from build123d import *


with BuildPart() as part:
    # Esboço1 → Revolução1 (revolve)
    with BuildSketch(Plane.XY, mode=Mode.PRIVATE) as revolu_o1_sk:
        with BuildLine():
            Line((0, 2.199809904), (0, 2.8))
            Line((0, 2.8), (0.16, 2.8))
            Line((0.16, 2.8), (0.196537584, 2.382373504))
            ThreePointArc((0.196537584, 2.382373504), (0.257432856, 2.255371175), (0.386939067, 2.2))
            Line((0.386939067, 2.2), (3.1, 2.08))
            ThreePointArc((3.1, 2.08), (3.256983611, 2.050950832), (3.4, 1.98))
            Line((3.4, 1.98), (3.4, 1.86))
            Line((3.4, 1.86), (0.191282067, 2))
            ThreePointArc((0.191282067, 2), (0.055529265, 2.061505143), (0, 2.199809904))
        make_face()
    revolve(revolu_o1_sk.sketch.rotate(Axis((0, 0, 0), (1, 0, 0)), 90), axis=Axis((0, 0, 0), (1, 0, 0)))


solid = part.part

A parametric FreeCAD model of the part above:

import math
import FreeCAD as App
import Part
import Sketcher
Q = App.Units.Quantity

doc = App.newDocument("Part")
body = doc.addObject("PartDesign::Body", "Body")

sketch1 = body.newObject("Sketcher::SketchObject", "Sketch")
sketch1.AttachmentSupport = (doc.getObject("XY_Plane"), [""])
sketch1.MapMode = "FlatFace"
sketch1.addGeometry([
    Part.LineSegment(App.Vector(0, 2.8, 0), App.Vector(0, 2.19981, 0)),
    Part.ArcOfCircle(Part.Circle(App.Vector(0.2, 2.19981, 0), App.Vector(0, 0, 1), 0.2), math.radians(180), math.radians(267.501705)),
    Part.LineSegment(App.Vector(0.191282, 2, 0), App.Vector(3.4, 1.86, 0)),
    Part.LineSegment(App.Vector(3.4, 1.86, 0), App.Vector(3.4, 1.98, 0)),
    Part.ArcOfCircle(Part.Circle(App.Vector(3.074501, 1.503504, 0), App.Vector(0, 0, 1), 0.57706), math.radians(55.662671), math.radians(87.467431)),
    Part.LineSegment(App.Vector(3.1, 2.08, 0), App.Vector(0.386939, 2.2, 0)),
    Part.ArcOfCircle(Part.Circle(App.Vector(0.395777, 2.399805, 0), App.Vector(0, 0, 1), 0.2), math.radians(-175), math.radians(-92.53257)),
    Part.LineSegment(App.Vector(0.196538, 2.382374, 0), App.Vector(0.16, 2.8, 0)),
    Part.LineSegment(App.Vector(0.16, 2.8, 0), App.Vector(0, 2.8, 0)),
], False)
sketch1.addConstraint([
    Sketcher.Constraint("Tangent", 0, 2, 1, 1),
    Sketcher.Constraint("Tangent", 1, 2, 2, 1),
    Sketcher.Constraint("Coincident", 2, 2, 3, 1),
    Sketcher.Constraint("Coincident", 3, 2, 4, 1),
    Sketcher.Constraint("Tangent", 4, 2, 5, 1),
    Sketcher.Constraint("Tangent", 5, 2, 6, 2),
    Sketcher.Constraint("Tangent", 6, 1, 7, 1),
    Sketcher.Constraint("Coincident", 7, 2, 8, 1),
    Sketcher.Constraint("Coincident", 8, 2, 0, 1),
    Sketcher.Constraint("Vertical", 0),
    Sketcher.Constraint("Vertical", 3),
    Sketcher.Constraint("Horizontal", 8),
    Sketcher.Constraint("Equal", 1, 6),
    Sketcher.Constraint("PointOnObject", 0, 2, -2),
    Sketcher.Constraint("Radius", 1, Q("0.2 mm")),
    Sketcher.Constraint("Angle", 7, Q("95 deg")),
    Sketcher.Constraint("DistanceY", -1, 1, 1, 2, Q("2 mm")),
    Sketcher.Constraint("DistanceX", 8, 2, 8, 1, Q("0.16 mm")),
    Sketcher.Constraint("DistanceY", 3, 1, 3, 2, Q("0.12 mm")),
    Sketcher.Constraint("DistanceX", -1, 1, 2, 2, Q("3.4 mm")),
    Sketcher.Constraint("DistanceX", -1, 1, 4, 2, Q("3.1 mm")),
    Sketcher.Constraint("DistanceY", -1, 1, 5, 2, Q("2.2 mm")),
    Sketcher.Constraint("DistanceY", -1, 1, 7, 2, Q("2.8 mm")),
    Sketcher.Constraint("DistanceY", 3, 2, 4, 2, Q("0.1 mm")),
    Sketcher.Constraint("DistanceY", -1, 1, 2, 2, Q("1.86 mm")),
])
revolution = body.newObject("PartDesign::Revolution", "Revolution")
revolution.Profile = sketch1
revolution.ReferenceAxis = (sketch1, ["H_Axis"])
revolution.Angle = 360

doc.recompute()
